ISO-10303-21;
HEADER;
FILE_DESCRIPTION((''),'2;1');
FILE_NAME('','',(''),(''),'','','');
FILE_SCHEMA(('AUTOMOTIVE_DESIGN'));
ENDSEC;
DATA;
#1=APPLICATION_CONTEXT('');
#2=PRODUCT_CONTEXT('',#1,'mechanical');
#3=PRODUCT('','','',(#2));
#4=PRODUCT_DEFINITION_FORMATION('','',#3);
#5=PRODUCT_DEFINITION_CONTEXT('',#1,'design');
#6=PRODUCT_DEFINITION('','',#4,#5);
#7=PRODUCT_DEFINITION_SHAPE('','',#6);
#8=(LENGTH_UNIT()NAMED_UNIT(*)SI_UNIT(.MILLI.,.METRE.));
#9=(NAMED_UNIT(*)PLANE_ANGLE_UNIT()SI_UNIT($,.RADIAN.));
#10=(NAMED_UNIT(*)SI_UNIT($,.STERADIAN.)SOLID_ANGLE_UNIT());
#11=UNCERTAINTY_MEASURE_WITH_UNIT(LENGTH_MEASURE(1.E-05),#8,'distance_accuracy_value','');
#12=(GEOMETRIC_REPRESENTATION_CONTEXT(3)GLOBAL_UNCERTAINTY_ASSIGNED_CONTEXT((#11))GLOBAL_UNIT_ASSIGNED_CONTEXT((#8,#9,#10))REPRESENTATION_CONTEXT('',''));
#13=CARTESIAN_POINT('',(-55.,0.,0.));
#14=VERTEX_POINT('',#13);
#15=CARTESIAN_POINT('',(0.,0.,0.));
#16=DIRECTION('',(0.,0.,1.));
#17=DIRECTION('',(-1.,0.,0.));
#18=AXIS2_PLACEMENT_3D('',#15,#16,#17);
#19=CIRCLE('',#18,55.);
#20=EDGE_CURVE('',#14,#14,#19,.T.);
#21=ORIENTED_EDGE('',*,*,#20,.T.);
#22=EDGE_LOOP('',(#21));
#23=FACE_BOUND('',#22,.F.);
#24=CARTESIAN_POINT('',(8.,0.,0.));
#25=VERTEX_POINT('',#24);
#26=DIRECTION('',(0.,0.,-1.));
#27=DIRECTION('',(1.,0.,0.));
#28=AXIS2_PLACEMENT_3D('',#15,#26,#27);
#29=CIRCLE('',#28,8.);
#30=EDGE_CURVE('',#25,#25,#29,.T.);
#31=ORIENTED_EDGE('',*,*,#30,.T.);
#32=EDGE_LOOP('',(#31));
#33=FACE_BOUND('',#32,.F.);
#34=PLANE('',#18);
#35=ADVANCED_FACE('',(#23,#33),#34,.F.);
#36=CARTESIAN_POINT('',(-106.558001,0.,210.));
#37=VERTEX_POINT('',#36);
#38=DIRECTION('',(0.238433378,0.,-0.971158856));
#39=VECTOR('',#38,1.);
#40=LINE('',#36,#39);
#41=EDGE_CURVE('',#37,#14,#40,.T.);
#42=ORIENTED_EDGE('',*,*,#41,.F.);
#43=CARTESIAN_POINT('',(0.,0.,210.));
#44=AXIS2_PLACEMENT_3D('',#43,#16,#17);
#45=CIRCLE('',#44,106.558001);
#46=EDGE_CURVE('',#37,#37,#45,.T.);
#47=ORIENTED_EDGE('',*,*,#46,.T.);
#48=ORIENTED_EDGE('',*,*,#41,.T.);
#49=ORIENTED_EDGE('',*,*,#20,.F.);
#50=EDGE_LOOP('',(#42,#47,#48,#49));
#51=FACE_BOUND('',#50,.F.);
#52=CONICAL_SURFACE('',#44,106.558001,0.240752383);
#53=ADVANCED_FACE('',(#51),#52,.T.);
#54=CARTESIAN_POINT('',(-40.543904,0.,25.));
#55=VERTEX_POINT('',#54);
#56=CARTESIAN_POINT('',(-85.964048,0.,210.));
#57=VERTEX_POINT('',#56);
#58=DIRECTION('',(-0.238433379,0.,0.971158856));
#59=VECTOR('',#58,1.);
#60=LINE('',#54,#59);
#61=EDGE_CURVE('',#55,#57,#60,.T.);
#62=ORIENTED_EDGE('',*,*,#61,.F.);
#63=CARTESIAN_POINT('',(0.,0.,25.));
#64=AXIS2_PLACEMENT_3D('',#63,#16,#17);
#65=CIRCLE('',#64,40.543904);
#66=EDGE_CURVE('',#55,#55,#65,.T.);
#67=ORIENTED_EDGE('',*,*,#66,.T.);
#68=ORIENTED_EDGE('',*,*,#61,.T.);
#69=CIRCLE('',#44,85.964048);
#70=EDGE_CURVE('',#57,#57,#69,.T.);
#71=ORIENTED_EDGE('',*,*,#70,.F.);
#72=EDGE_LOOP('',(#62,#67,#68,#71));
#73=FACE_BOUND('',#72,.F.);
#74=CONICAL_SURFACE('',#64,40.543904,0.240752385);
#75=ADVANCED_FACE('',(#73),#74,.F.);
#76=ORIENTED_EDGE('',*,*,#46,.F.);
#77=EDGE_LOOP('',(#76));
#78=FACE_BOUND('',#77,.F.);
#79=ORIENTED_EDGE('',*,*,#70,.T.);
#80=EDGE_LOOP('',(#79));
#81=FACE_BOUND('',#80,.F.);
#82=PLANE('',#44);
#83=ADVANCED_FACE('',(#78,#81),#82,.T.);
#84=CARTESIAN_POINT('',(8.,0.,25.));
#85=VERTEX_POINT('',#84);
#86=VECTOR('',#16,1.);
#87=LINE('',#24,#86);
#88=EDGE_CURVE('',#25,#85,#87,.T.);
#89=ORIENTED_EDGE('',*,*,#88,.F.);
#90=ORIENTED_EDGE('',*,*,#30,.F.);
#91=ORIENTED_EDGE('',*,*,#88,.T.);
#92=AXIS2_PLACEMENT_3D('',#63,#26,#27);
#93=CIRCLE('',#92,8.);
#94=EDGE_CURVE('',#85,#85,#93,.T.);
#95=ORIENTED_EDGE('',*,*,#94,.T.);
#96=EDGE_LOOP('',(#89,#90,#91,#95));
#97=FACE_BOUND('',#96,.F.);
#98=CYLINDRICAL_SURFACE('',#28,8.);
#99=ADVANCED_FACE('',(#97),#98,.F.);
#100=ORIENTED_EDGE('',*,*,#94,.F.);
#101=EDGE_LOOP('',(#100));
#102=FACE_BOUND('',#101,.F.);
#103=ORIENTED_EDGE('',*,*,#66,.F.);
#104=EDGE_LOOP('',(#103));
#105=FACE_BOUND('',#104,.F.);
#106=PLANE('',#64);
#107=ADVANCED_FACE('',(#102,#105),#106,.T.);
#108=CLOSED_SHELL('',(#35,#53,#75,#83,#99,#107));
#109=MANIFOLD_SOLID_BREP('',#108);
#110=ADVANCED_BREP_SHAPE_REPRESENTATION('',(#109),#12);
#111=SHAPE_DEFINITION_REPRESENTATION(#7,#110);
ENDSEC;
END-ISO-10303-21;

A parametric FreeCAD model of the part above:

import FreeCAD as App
import Part
import Sketcher
from FreeCAD import Vector
Q = App.Units.Quantity

doc = App.newDocument("Part")
params = doc.addObject("Spreadsheet::Sheet", "Params")
for row, (alias, value) in enumerate([
    ("sketch1_width", "55 mm"),
    ("sketch1_height", "25 mm"),
    ("revolution_angle", "360 deg"),
    ("sketch2_diameter", "16 mm"),
    ("pocket1_length", "25 mm"),
], start=1):
    params.set(f"A{row}", alias)
    params.set(f"B{row}", "=" + value)
    params.setAlias(f"B{row}", alias)

body = doc.addObject("PartDesign::Body", "Body")

# Sketch on XZ plane
sketch1 = body.newObject("Sketcher::SketchObject", "Sketch")
sketch1.AttachmentSupport = (doc.getObject("XZ_Plane"), [""])
sketch1.MapMode = "FlatFace"
sketch1.addGeometry([
    Part.LineSegment(Vector(-55, 0, 0), Vector(0, 0, 0)),  # 0
    Part.LineSegment(Vector(0, 0, 0), Vector(0, 25, 0)),  # 1
    Part.LineSegment(Vector(0, 25, 0), Vector(-41, 25, 0)),  # 2
    Part.LineSegment(Vector(-41, 25, 0), Vector(-86, 210, 0)),  # 3
    Part.LineSegment(Vector(-86, 210, 0), Vector(-107, 210, 0)),  # 4
    Part.LineSegment(Vector(-107, 210, 0), Vector(-55, 0, 0)),  # 5
], False)
sketch1.addConstraint([
    Sketcher.Constraint("Coincident", 0, 2, 1, 1),
    Sketcher.Constraint("Coincident", 1, 2, 2, 1),
    Sketcher.Constraint("Coincident", 2, 2, 3, 1),
    Sketcher.Constraint("Coincident", 3, 2, 4, 1),
    Sketcher.Constraint("Coincident", 4, 2, 5, 1),
    Sketcher.Constraint("Coincident", 5, 2, 0, 1),
    Sketcher.Constraint("Horizontal", 0),
    Sketcher.Constraint("Vertical", 1),
    Sketcher.Constraint("Horizontal", 2),
    Sketcher.Constraint("Horizontal", 4),
    Sketcher.Constraint("Coincident", 0, 2, -1, 1),
    Sketcher.Constraint("Parallel", 3, 5),
    Sketcher.Constraint("DistanceX", 0, 1, 0, 2, Q("55 mm")),
    Sketcher.Constraint("DistanceY", 1, 1, 1, 2, Q("25 mm")),
    Sketcher.Constraint("DistanceY", -1, 1, 3, 2, Q("210 mm")),
    Sketcher.Constraint("DistanceX", 4, 2, -1, 1, Q("106.558001 mm")),
    Sketcher.Constraint("DistanceX", 2, 2, 2, 1, Q("40.543904 mm")),
])
sketch1.setExpression("Constraints[12]", "Params.sketch1_width")
sketch1.setExpression("Constraints[13]", "Params.sketch1_height")
revolution = body.newObject("PartDesign::Revolution", "Revolution")
revolution.Profile = sketch1
revolution.ReferenceAxis = (sketch1, ["V_Axis"])
revolution.setExpression("Angle", "Params.revolution_angle")

# Sketch on XY plane
sketch2 = body.newObject("Sketcher::SketchObject", "Sketch001")
sketch2.AttachmentSupport = (doc.getObject("XY_Plane"), [""])
sketch2.MapMode = "FlatFace"
sketch2.addGeometry(Part.Circle(Vector(0, 0, 0), Vector(0, 0, 1), 8), False)
sketch2.addConstraint([
    Sketcher.Constraint("Coincident", 0, 3, -1, 1),
    Sketcher.Constraint("Diameter", 0, Q("16 mm")),
])
sketch2.setExpression("Constraints[1]", "Params.sketch2_diameter")
pocket1 = body.newObject("PartDesign::Pocket", "Pocket")
pocket1.Profile = sketch2
pocket1.setExpression("Length", "Params.pocket1_length")
pocket1.Reversed = True

doc.recompute()
